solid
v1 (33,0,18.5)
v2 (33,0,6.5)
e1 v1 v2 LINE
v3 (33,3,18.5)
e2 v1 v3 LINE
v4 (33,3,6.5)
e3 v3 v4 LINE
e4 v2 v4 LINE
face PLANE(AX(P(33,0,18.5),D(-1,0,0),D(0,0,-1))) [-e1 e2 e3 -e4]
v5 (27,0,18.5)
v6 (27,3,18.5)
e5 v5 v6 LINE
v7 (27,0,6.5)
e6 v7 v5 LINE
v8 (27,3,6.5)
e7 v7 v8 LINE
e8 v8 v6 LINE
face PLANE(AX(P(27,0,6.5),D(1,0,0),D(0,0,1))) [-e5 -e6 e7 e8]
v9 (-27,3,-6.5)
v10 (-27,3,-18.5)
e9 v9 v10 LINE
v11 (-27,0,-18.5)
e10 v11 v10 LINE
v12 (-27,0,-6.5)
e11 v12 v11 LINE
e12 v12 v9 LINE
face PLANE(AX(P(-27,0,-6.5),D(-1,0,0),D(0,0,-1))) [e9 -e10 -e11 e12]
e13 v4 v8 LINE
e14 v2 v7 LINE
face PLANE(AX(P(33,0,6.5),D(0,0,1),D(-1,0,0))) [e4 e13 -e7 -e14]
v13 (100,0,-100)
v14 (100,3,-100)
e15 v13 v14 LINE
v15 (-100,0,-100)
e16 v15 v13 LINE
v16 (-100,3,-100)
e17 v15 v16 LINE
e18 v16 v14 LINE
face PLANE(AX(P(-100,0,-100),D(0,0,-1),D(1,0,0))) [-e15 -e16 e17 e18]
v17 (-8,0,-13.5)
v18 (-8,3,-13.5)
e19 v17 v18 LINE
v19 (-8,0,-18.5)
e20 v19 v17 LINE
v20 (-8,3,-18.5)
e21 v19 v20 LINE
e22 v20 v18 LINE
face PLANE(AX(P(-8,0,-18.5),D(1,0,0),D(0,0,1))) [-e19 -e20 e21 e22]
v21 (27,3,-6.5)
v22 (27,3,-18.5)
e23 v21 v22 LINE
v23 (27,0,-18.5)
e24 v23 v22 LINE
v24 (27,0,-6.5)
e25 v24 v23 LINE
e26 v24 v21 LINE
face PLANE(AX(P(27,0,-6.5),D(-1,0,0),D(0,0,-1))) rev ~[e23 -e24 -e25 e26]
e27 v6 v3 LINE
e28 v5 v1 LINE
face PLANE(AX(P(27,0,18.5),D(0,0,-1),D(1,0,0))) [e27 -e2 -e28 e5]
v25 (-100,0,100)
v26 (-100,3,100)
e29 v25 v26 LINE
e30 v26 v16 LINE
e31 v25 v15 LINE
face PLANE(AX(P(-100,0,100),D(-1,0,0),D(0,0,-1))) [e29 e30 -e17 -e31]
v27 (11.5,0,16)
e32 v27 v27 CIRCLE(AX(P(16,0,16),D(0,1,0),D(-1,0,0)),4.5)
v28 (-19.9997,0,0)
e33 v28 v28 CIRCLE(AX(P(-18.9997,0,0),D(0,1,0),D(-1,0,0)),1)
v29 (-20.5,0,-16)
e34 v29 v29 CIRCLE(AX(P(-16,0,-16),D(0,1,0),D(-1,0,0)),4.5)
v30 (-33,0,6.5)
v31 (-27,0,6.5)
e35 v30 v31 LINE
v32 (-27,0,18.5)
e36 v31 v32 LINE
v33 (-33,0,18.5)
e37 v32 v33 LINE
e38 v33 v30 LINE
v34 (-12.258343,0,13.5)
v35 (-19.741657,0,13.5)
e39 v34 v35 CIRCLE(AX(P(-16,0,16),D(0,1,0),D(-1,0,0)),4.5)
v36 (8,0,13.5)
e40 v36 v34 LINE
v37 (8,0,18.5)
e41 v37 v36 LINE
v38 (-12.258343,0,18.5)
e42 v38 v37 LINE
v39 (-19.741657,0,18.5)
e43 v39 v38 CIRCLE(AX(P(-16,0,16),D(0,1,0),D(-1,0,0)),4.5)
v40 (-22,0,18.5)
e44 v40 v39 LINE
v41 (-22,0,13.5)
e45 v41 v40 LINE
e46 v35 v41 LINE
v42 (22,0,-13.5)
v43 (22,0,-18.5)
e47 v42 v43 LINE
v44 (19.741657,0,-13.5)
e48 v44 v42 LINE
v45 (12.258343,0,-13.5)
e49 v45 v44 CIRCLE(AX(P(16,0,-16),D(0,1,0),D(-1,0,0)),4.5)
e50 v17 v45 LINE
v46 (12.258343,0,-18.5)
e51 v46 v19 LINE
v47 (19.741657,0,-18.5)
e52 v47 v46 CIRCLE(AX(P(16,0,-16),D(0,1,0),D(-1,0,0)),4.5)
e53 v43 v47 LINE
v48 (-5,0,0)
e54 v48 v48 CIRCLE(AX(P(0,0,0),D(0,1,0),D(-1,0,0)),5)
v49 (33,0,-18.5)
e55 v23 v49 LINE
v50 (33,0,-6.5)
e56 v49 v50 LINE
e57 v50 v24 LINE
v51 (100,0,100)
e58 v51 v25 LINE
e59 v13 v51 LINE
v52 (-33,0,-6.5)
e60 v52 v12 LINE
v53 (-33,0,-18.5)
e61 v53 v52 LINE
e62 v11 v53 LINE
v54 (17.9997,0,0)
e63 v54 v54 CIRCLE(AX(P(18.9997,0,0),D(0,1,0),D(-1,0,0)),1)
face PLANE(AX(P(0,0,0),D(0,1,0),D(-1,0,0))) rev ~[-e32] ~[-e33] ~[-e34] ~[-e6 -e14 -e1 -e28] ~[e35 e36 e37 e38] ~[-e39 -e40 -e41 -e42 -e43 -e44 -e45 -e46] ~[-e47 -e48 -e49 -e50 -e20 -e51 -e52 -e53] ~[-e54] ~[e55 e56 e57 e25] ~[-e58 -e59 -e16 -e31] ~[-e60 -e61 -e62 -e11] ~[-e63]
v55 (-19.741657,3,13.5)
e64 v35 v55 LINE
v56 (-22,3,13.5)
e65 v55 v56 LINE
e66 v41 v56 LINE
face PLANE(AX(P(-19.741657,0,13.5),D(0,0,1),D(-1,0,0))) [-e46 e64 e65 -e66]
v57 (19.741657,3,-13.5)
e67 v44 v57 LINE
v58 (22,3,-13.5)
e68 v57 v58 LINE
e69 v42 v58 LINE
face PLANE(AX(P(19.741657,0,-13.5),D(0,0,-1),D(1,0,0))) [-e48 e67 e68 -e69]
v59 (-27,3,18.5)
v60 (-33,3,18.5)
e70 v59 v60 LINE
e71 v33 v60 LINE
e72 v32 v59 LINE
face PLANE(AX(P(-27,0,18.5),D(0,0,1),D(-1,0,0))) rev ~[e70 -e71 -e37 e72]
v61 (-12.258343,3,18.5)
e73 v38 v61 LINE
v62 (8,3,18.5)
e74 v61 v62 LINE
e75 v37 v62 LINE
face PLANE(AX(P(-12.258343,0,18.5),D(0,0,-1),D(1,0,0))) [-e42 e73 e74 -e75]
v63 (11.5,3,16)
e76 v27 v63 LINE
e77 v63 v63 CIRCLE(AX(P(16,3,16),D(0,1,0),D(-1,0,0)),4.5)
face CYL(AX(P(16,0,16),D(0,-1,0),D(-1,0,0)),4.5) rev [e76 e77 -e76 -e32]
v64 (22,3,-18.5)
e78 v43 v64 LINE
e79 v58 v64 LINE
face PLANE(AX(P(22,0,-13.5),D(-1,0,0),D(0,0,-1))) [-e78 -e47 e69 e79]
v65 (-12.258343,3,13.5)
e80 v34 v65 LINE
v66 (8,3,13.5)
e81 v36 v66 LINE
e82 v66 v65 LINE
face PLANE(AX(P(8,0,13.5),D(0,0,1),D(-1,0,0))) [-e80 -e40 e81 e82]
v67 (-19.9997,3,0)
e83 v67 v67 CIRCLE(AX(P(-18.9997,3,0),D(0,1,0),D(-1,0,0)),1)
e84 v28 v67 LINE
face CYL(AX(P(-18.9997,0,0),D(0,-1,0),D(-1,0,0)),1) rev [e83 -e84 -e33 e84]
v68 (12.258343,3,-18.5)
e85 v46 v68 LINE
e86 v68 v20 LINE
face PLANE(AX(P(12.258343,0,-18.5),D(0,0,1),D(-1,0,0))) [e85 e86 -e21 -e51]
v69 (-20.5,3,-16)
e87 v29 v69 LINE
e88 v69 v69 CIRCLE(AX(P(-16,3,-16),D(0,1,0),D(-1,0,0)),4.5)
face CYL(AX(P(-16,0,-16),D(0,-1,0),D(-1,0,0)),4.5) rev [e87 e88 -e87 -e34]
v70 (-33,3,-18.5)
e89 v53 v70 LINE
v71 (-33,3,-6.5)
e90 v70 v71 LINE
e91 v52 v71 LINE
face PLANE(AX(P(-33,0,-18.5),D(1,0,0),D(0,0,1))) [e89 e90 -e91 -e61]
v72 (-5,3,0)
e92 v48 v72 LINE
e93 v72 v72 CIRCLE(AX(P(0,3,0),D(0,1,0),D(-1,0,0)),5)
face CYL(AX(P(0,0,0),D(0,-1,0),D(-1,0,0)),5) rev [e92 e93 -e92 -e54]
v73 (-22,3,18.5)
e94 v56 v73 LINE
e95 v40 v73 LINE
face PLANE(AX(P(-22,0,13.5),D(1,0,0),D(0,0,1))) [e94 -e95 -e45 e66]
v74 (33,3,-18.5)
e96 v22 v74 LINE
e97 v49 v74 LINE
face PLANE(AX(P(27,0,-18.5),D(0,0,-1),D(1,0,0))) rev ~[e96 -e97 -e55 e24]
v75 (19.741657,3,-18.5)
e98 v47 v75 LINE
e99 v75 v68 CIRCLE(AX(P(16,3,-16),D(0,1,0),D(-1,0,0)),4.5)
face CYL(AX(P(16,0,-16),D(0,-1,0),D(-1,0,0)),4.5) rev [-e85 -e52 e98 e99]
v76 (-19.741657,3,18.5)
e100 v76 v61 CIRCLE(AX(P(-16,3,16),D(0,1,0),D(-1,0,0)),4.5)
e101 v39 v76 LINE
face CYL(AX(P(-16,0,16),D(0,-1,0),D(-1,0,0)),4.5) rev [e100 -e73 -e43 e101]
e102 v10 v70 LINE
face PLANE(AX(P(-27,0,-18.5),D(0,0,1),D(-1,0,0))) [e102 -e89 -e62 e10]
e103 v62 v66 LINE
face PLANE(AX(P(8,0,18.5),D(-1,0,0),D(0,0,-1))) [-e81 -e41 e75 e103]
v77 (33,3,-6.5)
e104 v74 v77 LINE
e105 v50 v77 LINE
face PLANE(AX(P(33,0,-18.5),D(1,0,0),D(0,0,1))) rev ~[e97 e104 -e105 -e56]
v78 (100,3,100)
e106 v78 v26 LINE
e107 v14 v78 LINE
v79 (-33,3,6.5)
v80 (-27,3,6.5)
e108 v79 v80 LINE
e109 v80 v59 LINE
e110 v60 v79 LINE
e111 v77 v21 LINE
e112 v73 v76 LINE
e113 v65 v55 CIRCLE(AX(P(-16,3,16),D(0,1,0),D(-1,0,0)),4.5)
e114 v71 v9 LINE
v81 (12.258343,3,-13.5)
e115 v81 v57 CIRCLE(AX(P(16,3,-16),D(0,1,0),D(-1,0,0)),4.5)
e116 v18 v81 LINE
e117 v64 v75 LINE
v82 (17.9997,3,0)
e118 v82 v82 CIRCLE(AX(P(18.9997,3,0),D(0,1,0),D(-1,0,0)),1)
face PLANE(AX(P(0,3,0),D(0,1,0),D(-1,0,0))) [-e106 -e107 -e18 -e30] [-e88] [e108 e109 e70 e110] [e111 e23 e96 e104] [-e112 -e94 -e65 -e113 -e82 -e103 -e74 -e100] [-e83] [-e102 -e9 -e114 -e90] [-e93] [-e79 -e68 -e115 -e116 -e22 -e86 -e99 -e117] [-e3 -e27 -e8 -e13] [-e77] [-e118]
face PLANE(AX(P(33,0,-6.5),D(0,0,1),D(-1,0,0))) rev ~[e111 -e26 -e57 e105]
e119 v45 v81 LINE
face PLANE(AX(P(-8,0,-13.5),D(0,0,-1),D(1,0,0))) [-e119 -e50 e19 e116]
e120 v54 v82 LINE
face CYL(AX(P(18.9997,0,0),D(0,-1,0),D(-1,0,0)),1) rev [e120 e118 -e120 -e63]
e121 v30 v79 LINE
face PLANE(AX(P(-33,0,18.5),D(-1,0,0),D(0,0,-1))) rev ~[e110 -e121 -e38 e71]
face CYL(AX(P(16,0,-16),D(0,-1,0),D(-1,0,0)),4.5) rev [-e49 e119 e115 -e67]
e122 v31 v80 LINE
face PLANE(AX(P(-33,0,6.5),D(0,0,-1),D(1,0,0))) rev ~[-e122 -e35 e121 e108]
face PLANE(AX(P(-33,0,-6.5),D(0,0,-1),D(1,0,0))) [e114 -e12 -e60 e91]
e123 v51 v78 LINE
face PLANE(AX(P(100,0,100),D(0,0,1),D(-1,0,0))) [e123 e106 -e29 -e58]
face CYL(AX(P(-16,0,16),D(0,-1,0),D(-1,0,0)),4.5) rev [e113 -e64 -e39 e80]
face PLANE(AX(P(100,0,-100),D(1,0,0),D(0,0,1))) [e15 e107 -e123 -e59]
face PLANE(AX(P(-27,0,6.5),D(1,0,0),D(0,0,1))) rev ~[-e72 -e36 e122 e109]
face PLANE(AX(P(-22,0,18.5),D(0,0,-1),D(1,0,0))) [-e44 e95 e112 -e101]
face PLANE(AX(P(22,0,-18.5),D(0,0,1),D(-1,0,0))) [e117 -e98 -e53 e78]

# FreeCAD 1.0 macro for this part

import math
import FreeCAD as App
import Part
import Sketcher
Q = App.Units.Quantity

doc = App.newDocument("Part")
body = doc.addObject("PartDesign::Body", "Body")

# Sketch on XZ plane
sketch1 = body.newObject("Sketcher::SketchObject", "Sketch")
sketch1.AttachmentSupport = (doc.getObject("XZ_Plane"), [""])
sketch1.MapMode = "FlatFace"
sketch1.addGeometry([
    Part.LineSegment(App.Vector(-100, 100, 0), App.Vector(100, 100, 0)),  # 0
    Part.LineSegment(App.Vector(100, 100, 0), App.Vector(100, -100, 0)),  # 1
    Part.LineSegment(App.Vector(100, -100, 0), App.Vector(-100, -100, 0)),  # 2
    Part.LineSegment(App.Vector(-100, -100, 0), App.Vector(-100, 100, 0)),  # 3
    Part.LineSegment(App.Vector(27, -6.5, 0), App.Vector(27, -18.5, 0)),  # 4
    Part.LineSegment(App.Vector(27, -18.5, 0), App.Vector(33, -18.5, 0)),  # 5
    Part.LineSegment(App.Vector(33, -18.5, 0), App.Vector(33, -6.5, 0)),  # 6
    Part.LineSegment(App.Vector(33, -6.5, 0), App.Vector(27, -6.5, 0)),  # 7
    Part.LineSegment(App.Vector(12.3, -13.5, 0), App.Vector(-8, -13.5, 0)),  # 8
    Part.LineSegment(App.Vector(-8, -13.5, 0), App.Vector(-8, -18.5, 0)),  # 9
    Part.LineSegment(App.Vector(-8, -18.5, 0), App.Vector(12.3, -18.5, 0)),  # 10
    Part.ArcOfCircle(Part.Circle(App.Vector(16, -16, 0), App.Vector(0, 0, 1), 4.5), math.radians(-146), math.radians(-34)),  # 11
    Part.LineSegment(App.Vector(19.7, -18.5, 0), App.Vector(22, -18.5, 0)),  # 12
    Part.LineSegment(App.Vector(22, -18.5, 0), App.Vector(22, -13.5, 0)),  # 13
    Part.LineSegment(App.Vector(22, -13.5, 0), App.Vector(19.7, -13.5, 0)),  # 14
    Part.ArcOfCircle(Part.Circle(App.Vector(16, -16, 0), App.Vector(0, 0, 1), 4.5), math.radians(34), math.radians(146)),  # 15
    Part.Circle(App.Vector(-16, -16, 0), App.Vector(0, 0, 1), 4.5),  # 16
    Part.LineSegment(App.Vector(-33, -18.5, 0), App.Vector(-27, -18.5, 0)),  # 17
    Part.LineSegment(App.Vector(-27, -18.5, 0), App.Vector(-27, -6.5, 0)),  # 18
    Part.LineSegment(App.Vector(-27, -6.5, 0), App.Vector(-33, -6.5, 0)),  # 19
    Part.LineSegment(App.Vector(-33, -6.5, 0), App.Vector(-33, -18.5, 0)),  # 20
    Part.LineSegment(App.Vector(27, 18.5, 0), App.Vector(27, 6.5, 0)),  # 21
    Part.LineSegment(App.Vector(27, 6.5, 0), App.Vector(33, 6.5, 0)),  # 22
    Part.LineSegment(App.Vector(33, 6.5, 0), App.Vector(33, 18.5, 0)),  # 23
    Part.LineSegment(App.Vector(33, 18.5, 0), App.Vector(27, 18.5, 0)),  # 24
    Part.Circle(App.Vector(19, 0, 0), App.Vector(0, 0, 1), 1),  # 25
    Part.Circle(App.Vector(16, 16, 0), App.Vector(0, 0, 1), 4.5),  # 26
    Part.Circle(App.Vector(0, 0, 0), App.Vector(0, 0, 1), 5),  # 27
    Part.Circle(App.Vector(-19, 0, 0), App.Vector(0, 0, 1), 1),  # 28
    Part.LineSegment(App.Vector(-12.3, 13.5, 0), App.Vector(8, 13.5, 0)),  # 29
    Part.LineSegment(App.Vector(8, 13.5, 0), App.Vector(8, 18.5, 0)),  # 30
    Part.LineSegment(App.Vector(8, 18.5, 0), App.Vector(-12.3, 18.5, 0)),  # 31
    Part.ArcOfCircle(Part.Circle(App.Vector(-16, 16, 0), App.Vector(0, 0, 1), 4.5), math.radians(34), math.radians(146)),  # 32
    Part.LineSegment(App.Vector(-19.7, 18.5, 0), App.Vector(-22, 18.5, 0)),  # 33
    Part.LineSegment(App.Vector(-22, 18.5, 0), App.Vector(-22, 13.5, 0)),  # 34
    Part.LineSegment(App.Vector(-22, 13.5, 0), App.Vector(-19.7, 13.5, 0)),  # 35
    Part.ArcOfCircle(Part.Circle(App.Vector(-16, 16, 0), App.Vector(0, 0, 1), 4.5), math.radians(-146), math.radians(-34)),  # 36
    Part.LineSegment(App.Vector(-27, 6.5, 0), App.Vector(-27, 18.5, 0)),  # 37
    Part.LineSegment(App.Vector(-27, 18.5, 0), App.Vector(-33, 18.5, 0)),  # 38
    Part.LineSegment(App.Vector(-33, 18.5, 0), App.Vector(-33, 6.5, 0)),  # 39
    Part.LineSegment(App.Vector(-33, 6.5, 0), App.Vector(-27, 6.5, 0)),  # 40
], False)
sketch1.addConstraint([
    Sketcher.Constraint("Coincident", 0, 2, 1, 1),
    Sketcher.Constraint("Coincident", 1, 2, 2, 1),
    Sketcher.Constraint("Coincident", 2, 2, 3, 1),
    Sketcher.Constraint("Coincident", 3, 2, 0, 1),
    Sketcher.Constraint("Coincident", 4, 2, 5, 1),
    Sketcher.Constraint("Coincident", 5, 2, 6, 1),
    Sketcher.Constraint("Coincident", 6, 2, 7, 1),
    Sketcher.Constraint("Coincident", 7, 2, 4, 1),
    Sketcher.Constraint("Coincident", 8, 2, 9, 1),
    Sketcher.Constraint("Coincident", 9, 2, 10, 1),
    Sketcher.Constraint("Coincident", 10, 2, 11, 1),
    Sketcher.Constraint("Coincident", 11, 2, 12, 1),
    Sketcher.Constraint("Coincident", 12, 2, 13, 1),
    Sketcher.Constraint("Coincident", 13, 2, 14, 1),
    Sketcher.Constraint("Coincident", 14, 2, 15, 1),
    Sketcher.Constraint("Coincident", 15, 2, 8, 1),
    Sketcher.Constraint("Coincident", 17, 2, 18, 1),
    Sketcher.Constraint("Coincident", 18, 2, 19, 1),
    Sketcher.Constraint("Coincident", 19, 2, 20, 1),
    Sketcher.Constraint("Coincident", 20, 2, 17, 1),
    Sketcher.Constraint("Coincident", 21, 2, 22, 1),
    Sketcher.Constraint("Coincident", 22, 2, 23, 1),
    Sketcher.Constraint("Coincident", 23, 2, 24, 1),
    Sketcher.Constraint("Coincident", 24, 2, 21, 1),
    Sketcher.Constraint("Coincident", 29, 2, 30, 1),
    Sketcher.Constraint("Coincident", 30, 2, 31, 1),
    Sketcher.Constraint("Coincident", 31, 2, 32, 1),
    Sketcher.Constraint("Coincident", 32, 2, 33, 1),
    Sketcher.Constraint("Coincident", 33, 2, 34, 1),
    Sketcher.Constraint("Coincident", 34, 2, 35, 1),
    Sketcher.Constraint("Coincident", 35, 2, 36, 1),
    Sketcher.Constraint("Coincident", 36, 2, 29, 1),
    Sketcher.Constraint("Coincident", 37, 2, 38, 1),
    Sketcher.Constraint("Coincident", 38, 2, 39, 1),
    Sketcher.Constraint("Coincident", 39, 2, 40, 1),
    Sketcher.Constraint("Coincident", 40, 2, 37, 1),
    Sketcher.Constraint("Horizontal", 0),
    Sketcher.Constraint("Vertical", 1),
    Sketcher.Constraint("Horizontal", 2),
    Sketcher.Constraint("Vertical", 3),
    Sketcher.Constraint("Vertical", 4),
    Sketcher.Constraint("Horizontal", 5),
    Sketcher.Constraint("Vertical", 6),
    Sketcher.Constraint("Horizontal", 7),
    Sketcher.Constraint("Horizontal", 8),
    Sketcher.Constraint("Vertical", 9),
    Sketcher.Constraint("Horizontal", 10),
    Sketcher.Constraint("Horizontal", 12),
    Sketcher.Constraint("Vertical", 13),
    Sketcher.Constraint("Horizontal", 14),
    Sketcher.Constraint("Horizontal", 17),
    Sketcher.Constraint("Vertical", 18),
    Sketcher.Constraint("Horizontal", 19),
    Sketcher.Constraint("Vertical", 20),
    Sketcher.Constraint("Vertical", 21),
    Sketcher.Constraint("Horizontal", 22),
    Sketcher.Constraint("Vertical", 23),
    Sketcher.Constraint("Horizontal", 24),
    Sketcher.Constraint("Horizontal", 29),
    Sketcher.Constraint("Vertical", 30),
    Sketcher.Constraint("Horizontal", 31),
    Sketcher.Constraint("Horizontal", 33),
    Sketcher.Constraint("Vertical", 34),
    Sketcher.Constraint("Horizontal", 35),
    Sketcher.Constraint("Vertical", 37),
    Sketcher.Constraint("Horizontal", 38),
    Sketcher.Constraint("Vertical", 39),
    Sketcher.Constraint("Horizontal", 40),
    Sketcher.Constraint("Coincident", 27, 3, -1, 1),
    Sketcher.Constraint("Coincident", 15, 3, 11, 3),
    Sketcher.Constraint("Coincident", 36, 3, 32, 3),
    Sketcher.Constraint("Equal", 11, 15),
    Sketcher.Constraint("Equal", 15, 16),
    Sketcher.Constraint("Equal", 16, 26),
    Sketcher.Constraint("Equal", 25, 28),
    Sketcher.Constraint("Equal", 26, 32),
    Sketcher.Constraint("Equal", 32, 36),
    Sketcher.Constraint("Symmetric", 16, 3, 26, 3, -1, 1),
    Sketcher.Constraint("Symmetric", 25, 3, 28, 3, -1, 1),
    Sketcher.Constraint("Symmetric", 11, 3, 32, 3, -1, 1),
    Sketcher.Constraint("Symmetric", 0, 2, 2, 2, -1, 1),
    Sketcher.Constraint("Symmetric", 18, 2, 21, 2, -1, 1),
    Sketcher.Constraint("Symmetric", 20, 2, 23, 2, -1, 1),
    Sketcher.Constraint("Symmetric", 8, 2, 29, 2, -1, 1),
    Sketcher.Constraint("Symmetric", 12, 2, 33, 2, -1, 1),
    Sketcher.Constraint("Symmetric", 4, 2, 37, 2, -1, 1),
    Sketcher.Constraint("Symmetric", 6, 2, 39, 2, -1, 1),
    Sketcher.Constraint("Symmetric", 11, 3, 16, 3, -2),
    Sketcher.Constraint("Symmetric", 4, 2, 17, 2, -2),
    Sketcher.Constraint("Symmetric", 6, 2, 19, 2, -2),
    Sketcher.Constraint("PointOnObject", 25, 3, -1),
    Sketcher.Constraint("Horizontal", 5, 2, 9, 2),
    Sketcher.Constraint("Horizontal", 10, 2, 11, 2),
    Sketcher.Constraint("Horizontal", 8, 2, 13, 2),
    Sketcher.Constraint("Horizontal", 24, 2, 30, 2),
    Sketcher.Constraint("Horizontal", 29, 2, 34, 2),
    Sketcher.Constraint("Vertical", 11, 2, 14, 2),
    Sketcher.Constraint("Equal", 2, 1),
    Sketcher.Constraint("Diameter", 16, Q("9 mm")),
    Sketcher.Constraint("Diameter", 25, Q("2 mm")),
    Sketcher.Constraint("Diameter", 27, Q("10 mm")),
    Sketcher.Constraint("DistanceX", 0, 1, 0, 2, Q("200 mm")),
    Sketcher.Constraint("DistanceX", 5, 1, 5, 2, Q("6 mm")),
    Sketcher.Constraint("DistanceY", 4, 2, 4, 1, Q("12 mm")),
    Sketcher.Constraint("DistanceY", 9, 2, 9, 1, Q("5 mm")),
    Sketcher.Constraint("DistanceX", -1, 1, 11, 3, Q("16 mm")),
    Sketcher.Constraint("DistanceY", 11, 3, -1, 1, Q("16 mm")),
    Sketcher.Constraint("DistanceX", 8, 2, -1, 1, Q("8 mm")),
    Sketcher.Constraint("DistanceX", 12, 2, 4, 2, Q("5 mm")),
    Sketcher.Constraint("DistanceX", 11, 3, 12, 2, Q("6 mm")),
    Sketcher.Constraint("DistanceX", 25, 3, 4, 2, Q("8.0003 mm")),
])
pad1 = body.newObject("PartDesign::Pad", "Pad")
pad1.Profile = sketch1
pad1.Length = 3
pad1.Reversed = True

doc.recompute()
